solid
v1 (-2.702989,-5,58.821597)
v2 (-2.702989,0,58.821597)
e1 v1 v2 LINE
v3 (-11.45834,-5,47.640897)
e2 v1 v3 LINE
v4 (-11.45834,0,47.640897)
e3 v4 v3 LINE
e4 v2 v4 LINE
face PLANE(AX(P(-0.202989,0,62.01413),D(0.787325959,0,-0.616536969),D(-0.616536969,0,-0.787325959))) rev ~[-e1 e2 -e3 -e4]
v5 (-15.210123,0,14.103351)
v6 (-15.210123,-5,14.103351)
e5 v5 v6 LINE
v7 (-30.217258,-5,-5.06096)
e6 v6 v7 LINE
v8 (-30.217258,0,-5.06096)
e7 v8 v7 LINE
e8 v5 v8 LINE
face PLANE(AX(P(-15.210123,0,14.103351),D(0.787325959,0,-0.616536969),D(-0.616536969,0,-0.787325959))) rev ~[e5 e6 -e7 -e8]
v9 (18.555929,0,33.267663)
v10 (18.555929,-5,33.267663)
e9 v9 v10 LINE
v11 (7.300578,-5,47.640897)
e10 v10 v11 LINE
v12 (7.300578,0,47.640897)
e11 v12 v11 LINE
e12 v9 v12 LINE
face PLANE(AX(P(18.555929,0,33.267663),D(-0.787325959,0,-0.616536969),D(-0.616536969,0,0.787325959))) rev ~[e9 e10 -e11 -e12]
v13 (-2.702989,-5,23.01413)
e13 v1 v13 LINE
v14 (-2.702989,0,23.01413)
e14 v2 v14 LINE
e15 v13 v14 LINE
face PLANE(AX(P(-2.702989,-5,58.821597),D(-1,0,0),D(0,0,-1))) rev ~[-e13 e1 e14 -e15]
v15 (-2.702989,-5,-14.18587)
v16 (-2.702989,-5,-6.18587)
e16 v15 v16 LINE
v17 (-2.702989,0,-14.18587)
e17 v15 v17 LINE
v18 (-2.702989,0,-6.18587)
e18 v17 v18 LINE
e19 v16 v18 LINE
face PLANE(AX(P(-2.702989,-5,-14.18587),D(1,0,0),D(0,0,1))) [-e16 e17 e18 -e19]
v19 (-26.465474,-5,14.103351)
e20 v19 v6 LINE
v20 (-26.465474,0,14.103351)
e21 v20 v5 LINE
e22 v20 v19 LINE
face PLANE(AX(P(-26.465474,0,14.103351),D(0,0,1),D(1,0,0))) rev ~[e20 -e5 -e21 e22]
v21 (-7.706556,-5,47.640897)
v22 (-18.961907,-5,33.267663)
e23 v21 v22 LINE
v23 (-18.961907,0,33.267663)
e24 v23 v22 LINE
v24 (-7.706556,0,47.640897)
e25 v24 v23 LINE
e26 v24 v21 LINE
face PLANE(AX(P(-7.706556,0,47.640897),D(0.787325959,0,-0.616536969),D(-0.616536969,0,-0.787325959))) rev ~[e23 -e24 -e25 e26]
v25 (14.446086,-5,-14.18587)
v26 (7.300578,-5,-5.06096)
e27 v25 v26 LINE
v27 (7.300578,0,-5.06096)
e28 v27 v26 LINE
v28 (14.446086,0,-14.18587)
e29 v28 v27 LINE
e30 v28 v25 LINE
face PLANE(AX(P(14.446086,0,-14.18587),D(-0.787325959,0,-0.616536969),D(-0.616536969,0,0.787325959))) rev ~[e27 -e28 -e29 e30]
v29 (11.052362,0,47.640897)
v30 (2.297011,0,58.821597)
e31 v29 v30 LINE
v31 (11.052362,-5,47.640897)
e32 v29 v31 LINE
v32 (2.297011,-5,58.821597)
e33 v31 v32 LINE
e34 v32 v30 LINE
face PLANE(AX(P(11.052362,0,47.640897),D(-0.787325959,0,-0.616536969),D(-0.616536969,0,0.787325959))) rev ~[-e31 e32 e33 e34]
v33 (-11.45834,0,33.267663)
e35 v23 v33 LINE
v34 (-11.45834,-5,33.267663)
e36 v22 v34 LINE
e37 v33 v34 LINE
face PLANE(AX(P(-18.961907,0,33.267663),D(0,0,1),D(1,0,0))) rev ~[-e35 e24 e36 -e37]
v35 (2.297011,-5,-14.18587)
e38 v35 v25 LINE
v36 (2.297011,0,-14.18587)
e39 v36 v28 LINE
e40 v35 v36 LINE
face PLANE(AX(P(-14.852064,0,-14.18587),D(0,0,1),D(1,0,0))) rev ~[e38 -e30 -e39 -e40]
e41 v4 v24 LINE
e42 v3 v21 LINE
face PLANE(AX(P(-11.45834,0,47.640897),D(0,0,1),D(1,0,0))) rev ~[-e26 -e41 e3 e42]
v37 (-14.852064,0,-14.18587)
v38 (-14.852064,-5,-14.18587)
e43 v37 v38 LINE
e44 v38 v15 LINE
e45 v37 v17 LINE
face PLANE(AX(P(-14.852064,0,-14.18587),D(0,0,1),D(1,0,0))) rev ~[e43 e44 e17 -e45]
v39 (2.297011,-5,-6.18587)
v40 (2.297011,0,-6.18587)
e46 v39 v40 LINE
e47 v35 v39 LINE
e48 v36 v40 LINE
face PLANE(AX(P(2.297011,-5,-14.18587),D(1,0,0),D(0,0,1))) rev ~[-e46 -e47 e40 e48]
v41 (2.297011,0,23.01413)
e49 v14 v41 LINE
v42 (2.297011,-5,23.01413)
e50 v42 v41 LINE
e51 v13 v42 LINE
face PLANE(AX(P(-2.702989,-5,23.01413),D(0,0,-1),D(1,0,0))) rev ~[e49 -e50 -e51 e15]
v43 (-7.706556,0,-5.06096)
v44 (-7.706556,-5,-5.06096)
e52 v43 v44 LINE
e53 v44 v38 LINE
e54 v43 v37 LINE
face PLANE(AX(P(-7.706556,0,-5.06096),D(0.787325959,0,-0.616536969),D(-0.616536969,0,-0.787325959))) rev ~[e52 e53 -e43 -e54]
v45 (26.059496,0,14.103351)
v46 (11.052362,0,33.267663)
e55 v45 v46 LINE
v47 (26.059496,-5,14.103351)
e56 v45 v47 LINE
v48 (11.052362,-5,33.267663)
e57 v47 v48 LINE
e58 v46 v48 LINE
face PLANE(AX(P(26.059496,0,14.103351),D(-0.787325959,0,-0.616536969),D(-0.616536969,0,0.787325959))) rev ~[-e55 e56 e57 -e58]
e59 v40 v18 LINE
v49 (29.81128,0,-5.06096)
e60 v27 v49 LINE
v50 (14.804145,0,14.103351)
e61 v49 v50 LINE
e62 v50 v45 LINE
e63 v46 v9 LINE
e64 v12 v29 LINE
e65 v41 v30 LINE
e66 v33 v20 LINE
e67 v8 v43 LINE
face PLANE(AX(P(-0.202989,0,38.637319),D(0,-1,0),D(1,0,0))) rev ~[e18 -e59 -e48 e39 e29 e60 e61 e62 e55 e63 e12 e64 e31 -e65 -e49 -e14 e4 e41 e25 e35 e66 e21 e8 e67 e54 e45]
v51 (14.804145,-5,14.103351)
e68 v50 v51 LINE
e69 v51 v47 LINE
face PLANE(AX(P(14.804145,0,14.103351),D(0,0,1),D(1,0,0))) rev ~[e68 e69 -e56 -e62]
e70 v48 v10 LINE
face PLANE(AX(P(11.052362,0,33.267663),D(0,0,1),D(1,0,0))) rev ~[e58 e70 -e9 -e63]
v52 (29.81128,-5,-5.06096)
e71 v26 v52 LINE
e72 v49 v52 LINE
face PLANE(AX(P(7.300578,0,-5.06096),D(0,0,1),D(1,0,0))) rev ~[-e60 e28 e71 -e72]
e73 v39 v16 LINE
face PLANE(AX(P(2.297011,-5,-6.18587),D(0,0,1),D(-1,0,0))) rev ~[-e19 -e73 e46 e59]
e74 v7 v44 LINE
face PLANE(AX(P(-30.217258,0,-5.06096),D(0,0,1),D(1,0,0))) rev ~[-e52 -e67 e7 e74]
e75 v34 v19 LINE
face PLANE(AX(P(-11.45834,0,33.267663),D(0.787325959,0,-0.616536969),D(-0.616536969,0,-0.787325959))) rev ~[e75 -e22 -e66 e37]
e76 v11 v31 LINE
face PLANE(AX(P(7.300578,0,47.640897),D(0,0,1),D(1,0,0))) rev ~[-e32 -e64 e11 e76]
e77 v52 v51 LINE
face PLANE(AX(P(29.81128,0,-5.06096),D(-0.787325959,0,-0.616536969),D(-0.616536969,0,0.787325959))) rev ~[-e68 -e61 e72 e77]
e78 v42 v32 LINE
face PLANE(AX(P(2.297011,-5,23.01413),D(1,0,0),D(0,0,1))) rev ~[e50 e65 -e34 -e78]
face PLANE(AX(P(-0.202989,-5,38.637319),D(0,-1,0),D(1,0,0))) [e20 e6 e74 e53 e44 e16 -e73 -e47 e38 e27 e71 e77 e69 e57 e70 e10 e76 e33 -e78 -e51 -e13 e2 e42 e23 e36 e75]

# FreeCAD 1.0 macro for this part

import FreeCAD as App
import Part
import Sketcher
from FreeCAD import Vector


def add_polygon(sketch, points):
    """Adds a closed chain of lines whose ends are joined by coincident constraints."""
    first, n = sketch.GeometryCount, len(points)
    for a, b in zip(points, points[1:] + points[:1]):
        sketch.addGeometry(Part.LineSegment(App.Vector(*a, 0), App.Vector(*b, 0)), False)
    for i in range(n):
        sketch.addConstraint(Sketcher.Constraint("Coincident", first + i, 2, first + (i + 1) % n, 1))

doc = App.newDocument("Part")
params = doc.addObject("Spreadsheet::Sheet", "Params")
for row, (alias, value) in enumerate([
    ("pad1_length", "5 mm"),
    ("sketch2_width", "5 mm"),
    ("sketch2_height", "8 mm"),
    ("pocket1_length", "25 mm"),
], start=1):
    params.set(f"A{row}", alias)
    params.set(f"B{row}", "=" + value)
    params.setAlias(f"B{row}", alias)

body = doc.addObject("PartDesign::Body", "Body")

# Sketch on XZ plane
sketch1 = body.newObject("Sketcher::SketchObject", "Sketch")
sketch1.AttachmentSupport = (doc.getObject("XZ_Plane"), [""])
sketch1.MapMode = "FlatFace"
add_polygon(sketch1, [(18.555929, 33.267663), (7.300578, 47.640897), (11.052362, 47.640897), (-0.202989, 62.01413), (-11.45834, 47.640897), (-7.706556, 47.640897), (-18.961907, 33.267663), (-11.45834, 33.267663), (-26.465474, 14.103351), (-15.210123, 14.103351), (-30.217258, -5.06096), (-7.706556, -5.06096), (-14.852064, -14.18587), (14.446086, -14.18587), (7.300578, -5.06096), (29.81128, -5.06096), (14.804145, 14.103351), (26.059496, 14.103351), (11.052362, 33.267663)])  # lines 0-18
sketch1.addConstraint(Sketcher.Constraint("Horizontal", 1))
sketch1.addConstraint(Sketcher.Constraint("Horizontal", 4))
sketch1.addConstraint(Sketcher.Constraint("Horizontal", 6))
sketch1.addConstraint(Sketcher.Constraint("Horizontal", 8))
sketch1.addConstraint(Sketcher.Constraint("Horizontal", 10))
sketch1.addConstraint(Sketcher.Constraint("Horizontal", 12))
sketch1.addConstraint(Sketcher.Constraint("Horizontal", 14))
sketch1.addConstraint(Sketcher.Constraint("Horizontal", 16))
sketch1.addConstraint(Sketcher.Constraint("Horizontal", 18))
sketch1.addConstraint(Sketcher.Constraint("Parallel", 0, 2))
sketch1.addConstraint(Sketcher.Constraint("Parallel", 3, 5))
sketch1.addConstraint(Sketcher.Constraint("Parallel", 5, 7))
sketch1.addConstraint(Sketcher.Constraint("Parallel", 7, 9))
sketch1.addConstraint(Sketcher.Constraint("Parallel", 9, 11))
sketch1.addConstraint(Sketcher.Constraint("Parallel", 2, 13))
sketch1.addConstraint(Sketcher.Constraint("Parallel", 13, 15))
sketch1.addConstraint(Sketcher.Constraint("Parallel", 15, 17))
sketch1.addConstraint(Sketcher.Constraint("Horizontal", 1, 2, 3, 2))
sketch1.addConstraint(Sketcher.Constraint("Horizontal", 10, 2, 13, 2))
sketch1.addConstraint(Sketcher.Constraint("Horizontal", 8, 2, 15, 2))
sketch1.addConstraint(Sketcher.Constraint("Horizontal", 6, 2, 17, 2))
sketch1.addConstraint(Sketcher.Constraint("Vertical", 3, 2, 6, 2))
sketch1.addConstraint(Sketcher.Constraint("Vertical", 4, 2, 10, 2))
sketch1.addConstraint(Sketcher.Constraint("Vertical", 0, 2, 13, 2))
sketch1.addConstraint(Sketcher.Constraint("Vertical", 1, 2, 17, 2))
sketch1.addConstraint(Sketcher.Constraint("Equal", 1, 4))
sketch1.addConstraint(Sketcher.Constraint("Equal", 10, 14))
sketch1.addConstraint(Sketcher.Constraint("Equal", 8, 16))
sketch1.addConstraint(Sketcher.Constraint("Equal", 0, 2))
sketch1.addConstraint(Sketcher.Constraint("Equal", 7, 9))
sketch1.addConstraint(Sketcher.Constraint("DistanceX", 10, 1, 10, 2, 22.510702))
sketch1.addConstraint(Sketcher.Constraint("DistanceX", 8, 1, 8, 2, 11.255351))
sketch1.addConstraint(Sketcher.Constraint("DistanceX", 12, 1, 12, 2, 29.298151))
sketch1.addConstraint(Sketcher.Constraint("DistanceX", 3, 2, 1, 2, 22.510702))
sketch1.addConstraint(Sketcher.Constraint("DistanceX", 8, 2, 13, 2, 22.510702))
sketch1.addConstraint(Sketcher.Constraint("Distance", 0, 18.25576))
sketch1.addConstraint(Sketcher.Constraint("DistanceX", -1, 1, 0, 2, 7.300578))
sketch1.addConstraint(Sketcher.Constraint("DistanceY", -1, 1, 2, 2, 62.01413))
pad1 = body.newObject("PartDesign::Pad", "Pad")
pad1.Profile = sketch1
pad1.setExpression("Length", "Params.pad1_length")

# Sketch on XZ plane
sketch2 = body.newObject("Sketcher::SketchObject", "Sketch001")
sketch2.AttachmentSupport = (doc.getObject("XZ_Plane"), [""])
sketch2.MapMode = "FlatFace"
sketch2.AttachmentOffset = App.Placement(Vector(0, 0, 5), App.Rotation())
add_polygon(sketch2, [(-0.202989, 62.01413), (-2.702989, 58.821597), (-2.702989, 23.01413), (2.297011, 23.01413), (2.297011, 58.821597)])  # lines 0-4
add_polygon(sketch2, [(-2.702989, -6.18587), (-2.702989, -14.18587), (2.297011, -14.18587), (2.297011, -6.18587)])  # lines 5-8
sketch2.addConstraint(Sketcher.Constraint("Vertical", 1))
sketch2.addConstraint(Sketcher.Constraint("Horizontal", 2))
sketch2.addConstraint(Sketcher.Constraint("Vertical", 3))
sketch2.addConstraint(Sketcher.Constraint("Vertical", 5))
sketch2.addConstraint(Sketcher.Constraint("Horizontal", 6))
sketch2.addConstraint(Sketcher.Constraint("Vertical", 7))
sketch2.addConstraint(Sketcher.Constraint("Horizontal", 8))
sketch2.addConstraint(Sketcher.Constraint("Horizontal", 0, 2, 3, 2))
sketch2.addConstraint(Sketcher.Constraint("Vertical", 1, 2, 5, 2))
sketch2.addConstraint(Sketcher.Constraint("Vertical", 3, 2, 6, 2))
sketch2.addConstraint(Sketcher.Constraint("Equal", 0, 4))
sketch2.addConstraint(Sketcher.Constraint("DistanceX", 2, 1, 2, 2, 5.0))
sketch2.addConstraint(Sketcher.Constraint("DistanceY", 5, 2, 5, 1, 8.0))
sketch2.addConstraint(Sketcher.Constraint("DistanceY", 1, 2, 4, 2, 39.0))
sketch2.addConstraint(Sketcher.Constraint("DistanceY", 5, 2, 1, 2, 37.2))
sketch2.addConstraint(Sketcher.Constraint("DistanceY", 1, 2, 1, 1, 35.807467))
sketch2.addConstraint(Sketcher.Constraint("DistanceX", 0, 2, -1, 1, 2.702989))
sketch2.addConstraint(Sketcher.Constraint("DistanceY", -1, 1, 1, 2, 23.01413))
sketch2.setExpression("Constraints[20]", "Params.sketch2_width")
sketch2.setExpression("Constraints[21]", "Params.sketch2_height")
pocket1 = body.newObject("PartDesign::Pocket", "Pocket")
pocket1.Profile = sketch2
pocket1.setExpression("Length", "Params.pocket1_length")

doc.recompute()
